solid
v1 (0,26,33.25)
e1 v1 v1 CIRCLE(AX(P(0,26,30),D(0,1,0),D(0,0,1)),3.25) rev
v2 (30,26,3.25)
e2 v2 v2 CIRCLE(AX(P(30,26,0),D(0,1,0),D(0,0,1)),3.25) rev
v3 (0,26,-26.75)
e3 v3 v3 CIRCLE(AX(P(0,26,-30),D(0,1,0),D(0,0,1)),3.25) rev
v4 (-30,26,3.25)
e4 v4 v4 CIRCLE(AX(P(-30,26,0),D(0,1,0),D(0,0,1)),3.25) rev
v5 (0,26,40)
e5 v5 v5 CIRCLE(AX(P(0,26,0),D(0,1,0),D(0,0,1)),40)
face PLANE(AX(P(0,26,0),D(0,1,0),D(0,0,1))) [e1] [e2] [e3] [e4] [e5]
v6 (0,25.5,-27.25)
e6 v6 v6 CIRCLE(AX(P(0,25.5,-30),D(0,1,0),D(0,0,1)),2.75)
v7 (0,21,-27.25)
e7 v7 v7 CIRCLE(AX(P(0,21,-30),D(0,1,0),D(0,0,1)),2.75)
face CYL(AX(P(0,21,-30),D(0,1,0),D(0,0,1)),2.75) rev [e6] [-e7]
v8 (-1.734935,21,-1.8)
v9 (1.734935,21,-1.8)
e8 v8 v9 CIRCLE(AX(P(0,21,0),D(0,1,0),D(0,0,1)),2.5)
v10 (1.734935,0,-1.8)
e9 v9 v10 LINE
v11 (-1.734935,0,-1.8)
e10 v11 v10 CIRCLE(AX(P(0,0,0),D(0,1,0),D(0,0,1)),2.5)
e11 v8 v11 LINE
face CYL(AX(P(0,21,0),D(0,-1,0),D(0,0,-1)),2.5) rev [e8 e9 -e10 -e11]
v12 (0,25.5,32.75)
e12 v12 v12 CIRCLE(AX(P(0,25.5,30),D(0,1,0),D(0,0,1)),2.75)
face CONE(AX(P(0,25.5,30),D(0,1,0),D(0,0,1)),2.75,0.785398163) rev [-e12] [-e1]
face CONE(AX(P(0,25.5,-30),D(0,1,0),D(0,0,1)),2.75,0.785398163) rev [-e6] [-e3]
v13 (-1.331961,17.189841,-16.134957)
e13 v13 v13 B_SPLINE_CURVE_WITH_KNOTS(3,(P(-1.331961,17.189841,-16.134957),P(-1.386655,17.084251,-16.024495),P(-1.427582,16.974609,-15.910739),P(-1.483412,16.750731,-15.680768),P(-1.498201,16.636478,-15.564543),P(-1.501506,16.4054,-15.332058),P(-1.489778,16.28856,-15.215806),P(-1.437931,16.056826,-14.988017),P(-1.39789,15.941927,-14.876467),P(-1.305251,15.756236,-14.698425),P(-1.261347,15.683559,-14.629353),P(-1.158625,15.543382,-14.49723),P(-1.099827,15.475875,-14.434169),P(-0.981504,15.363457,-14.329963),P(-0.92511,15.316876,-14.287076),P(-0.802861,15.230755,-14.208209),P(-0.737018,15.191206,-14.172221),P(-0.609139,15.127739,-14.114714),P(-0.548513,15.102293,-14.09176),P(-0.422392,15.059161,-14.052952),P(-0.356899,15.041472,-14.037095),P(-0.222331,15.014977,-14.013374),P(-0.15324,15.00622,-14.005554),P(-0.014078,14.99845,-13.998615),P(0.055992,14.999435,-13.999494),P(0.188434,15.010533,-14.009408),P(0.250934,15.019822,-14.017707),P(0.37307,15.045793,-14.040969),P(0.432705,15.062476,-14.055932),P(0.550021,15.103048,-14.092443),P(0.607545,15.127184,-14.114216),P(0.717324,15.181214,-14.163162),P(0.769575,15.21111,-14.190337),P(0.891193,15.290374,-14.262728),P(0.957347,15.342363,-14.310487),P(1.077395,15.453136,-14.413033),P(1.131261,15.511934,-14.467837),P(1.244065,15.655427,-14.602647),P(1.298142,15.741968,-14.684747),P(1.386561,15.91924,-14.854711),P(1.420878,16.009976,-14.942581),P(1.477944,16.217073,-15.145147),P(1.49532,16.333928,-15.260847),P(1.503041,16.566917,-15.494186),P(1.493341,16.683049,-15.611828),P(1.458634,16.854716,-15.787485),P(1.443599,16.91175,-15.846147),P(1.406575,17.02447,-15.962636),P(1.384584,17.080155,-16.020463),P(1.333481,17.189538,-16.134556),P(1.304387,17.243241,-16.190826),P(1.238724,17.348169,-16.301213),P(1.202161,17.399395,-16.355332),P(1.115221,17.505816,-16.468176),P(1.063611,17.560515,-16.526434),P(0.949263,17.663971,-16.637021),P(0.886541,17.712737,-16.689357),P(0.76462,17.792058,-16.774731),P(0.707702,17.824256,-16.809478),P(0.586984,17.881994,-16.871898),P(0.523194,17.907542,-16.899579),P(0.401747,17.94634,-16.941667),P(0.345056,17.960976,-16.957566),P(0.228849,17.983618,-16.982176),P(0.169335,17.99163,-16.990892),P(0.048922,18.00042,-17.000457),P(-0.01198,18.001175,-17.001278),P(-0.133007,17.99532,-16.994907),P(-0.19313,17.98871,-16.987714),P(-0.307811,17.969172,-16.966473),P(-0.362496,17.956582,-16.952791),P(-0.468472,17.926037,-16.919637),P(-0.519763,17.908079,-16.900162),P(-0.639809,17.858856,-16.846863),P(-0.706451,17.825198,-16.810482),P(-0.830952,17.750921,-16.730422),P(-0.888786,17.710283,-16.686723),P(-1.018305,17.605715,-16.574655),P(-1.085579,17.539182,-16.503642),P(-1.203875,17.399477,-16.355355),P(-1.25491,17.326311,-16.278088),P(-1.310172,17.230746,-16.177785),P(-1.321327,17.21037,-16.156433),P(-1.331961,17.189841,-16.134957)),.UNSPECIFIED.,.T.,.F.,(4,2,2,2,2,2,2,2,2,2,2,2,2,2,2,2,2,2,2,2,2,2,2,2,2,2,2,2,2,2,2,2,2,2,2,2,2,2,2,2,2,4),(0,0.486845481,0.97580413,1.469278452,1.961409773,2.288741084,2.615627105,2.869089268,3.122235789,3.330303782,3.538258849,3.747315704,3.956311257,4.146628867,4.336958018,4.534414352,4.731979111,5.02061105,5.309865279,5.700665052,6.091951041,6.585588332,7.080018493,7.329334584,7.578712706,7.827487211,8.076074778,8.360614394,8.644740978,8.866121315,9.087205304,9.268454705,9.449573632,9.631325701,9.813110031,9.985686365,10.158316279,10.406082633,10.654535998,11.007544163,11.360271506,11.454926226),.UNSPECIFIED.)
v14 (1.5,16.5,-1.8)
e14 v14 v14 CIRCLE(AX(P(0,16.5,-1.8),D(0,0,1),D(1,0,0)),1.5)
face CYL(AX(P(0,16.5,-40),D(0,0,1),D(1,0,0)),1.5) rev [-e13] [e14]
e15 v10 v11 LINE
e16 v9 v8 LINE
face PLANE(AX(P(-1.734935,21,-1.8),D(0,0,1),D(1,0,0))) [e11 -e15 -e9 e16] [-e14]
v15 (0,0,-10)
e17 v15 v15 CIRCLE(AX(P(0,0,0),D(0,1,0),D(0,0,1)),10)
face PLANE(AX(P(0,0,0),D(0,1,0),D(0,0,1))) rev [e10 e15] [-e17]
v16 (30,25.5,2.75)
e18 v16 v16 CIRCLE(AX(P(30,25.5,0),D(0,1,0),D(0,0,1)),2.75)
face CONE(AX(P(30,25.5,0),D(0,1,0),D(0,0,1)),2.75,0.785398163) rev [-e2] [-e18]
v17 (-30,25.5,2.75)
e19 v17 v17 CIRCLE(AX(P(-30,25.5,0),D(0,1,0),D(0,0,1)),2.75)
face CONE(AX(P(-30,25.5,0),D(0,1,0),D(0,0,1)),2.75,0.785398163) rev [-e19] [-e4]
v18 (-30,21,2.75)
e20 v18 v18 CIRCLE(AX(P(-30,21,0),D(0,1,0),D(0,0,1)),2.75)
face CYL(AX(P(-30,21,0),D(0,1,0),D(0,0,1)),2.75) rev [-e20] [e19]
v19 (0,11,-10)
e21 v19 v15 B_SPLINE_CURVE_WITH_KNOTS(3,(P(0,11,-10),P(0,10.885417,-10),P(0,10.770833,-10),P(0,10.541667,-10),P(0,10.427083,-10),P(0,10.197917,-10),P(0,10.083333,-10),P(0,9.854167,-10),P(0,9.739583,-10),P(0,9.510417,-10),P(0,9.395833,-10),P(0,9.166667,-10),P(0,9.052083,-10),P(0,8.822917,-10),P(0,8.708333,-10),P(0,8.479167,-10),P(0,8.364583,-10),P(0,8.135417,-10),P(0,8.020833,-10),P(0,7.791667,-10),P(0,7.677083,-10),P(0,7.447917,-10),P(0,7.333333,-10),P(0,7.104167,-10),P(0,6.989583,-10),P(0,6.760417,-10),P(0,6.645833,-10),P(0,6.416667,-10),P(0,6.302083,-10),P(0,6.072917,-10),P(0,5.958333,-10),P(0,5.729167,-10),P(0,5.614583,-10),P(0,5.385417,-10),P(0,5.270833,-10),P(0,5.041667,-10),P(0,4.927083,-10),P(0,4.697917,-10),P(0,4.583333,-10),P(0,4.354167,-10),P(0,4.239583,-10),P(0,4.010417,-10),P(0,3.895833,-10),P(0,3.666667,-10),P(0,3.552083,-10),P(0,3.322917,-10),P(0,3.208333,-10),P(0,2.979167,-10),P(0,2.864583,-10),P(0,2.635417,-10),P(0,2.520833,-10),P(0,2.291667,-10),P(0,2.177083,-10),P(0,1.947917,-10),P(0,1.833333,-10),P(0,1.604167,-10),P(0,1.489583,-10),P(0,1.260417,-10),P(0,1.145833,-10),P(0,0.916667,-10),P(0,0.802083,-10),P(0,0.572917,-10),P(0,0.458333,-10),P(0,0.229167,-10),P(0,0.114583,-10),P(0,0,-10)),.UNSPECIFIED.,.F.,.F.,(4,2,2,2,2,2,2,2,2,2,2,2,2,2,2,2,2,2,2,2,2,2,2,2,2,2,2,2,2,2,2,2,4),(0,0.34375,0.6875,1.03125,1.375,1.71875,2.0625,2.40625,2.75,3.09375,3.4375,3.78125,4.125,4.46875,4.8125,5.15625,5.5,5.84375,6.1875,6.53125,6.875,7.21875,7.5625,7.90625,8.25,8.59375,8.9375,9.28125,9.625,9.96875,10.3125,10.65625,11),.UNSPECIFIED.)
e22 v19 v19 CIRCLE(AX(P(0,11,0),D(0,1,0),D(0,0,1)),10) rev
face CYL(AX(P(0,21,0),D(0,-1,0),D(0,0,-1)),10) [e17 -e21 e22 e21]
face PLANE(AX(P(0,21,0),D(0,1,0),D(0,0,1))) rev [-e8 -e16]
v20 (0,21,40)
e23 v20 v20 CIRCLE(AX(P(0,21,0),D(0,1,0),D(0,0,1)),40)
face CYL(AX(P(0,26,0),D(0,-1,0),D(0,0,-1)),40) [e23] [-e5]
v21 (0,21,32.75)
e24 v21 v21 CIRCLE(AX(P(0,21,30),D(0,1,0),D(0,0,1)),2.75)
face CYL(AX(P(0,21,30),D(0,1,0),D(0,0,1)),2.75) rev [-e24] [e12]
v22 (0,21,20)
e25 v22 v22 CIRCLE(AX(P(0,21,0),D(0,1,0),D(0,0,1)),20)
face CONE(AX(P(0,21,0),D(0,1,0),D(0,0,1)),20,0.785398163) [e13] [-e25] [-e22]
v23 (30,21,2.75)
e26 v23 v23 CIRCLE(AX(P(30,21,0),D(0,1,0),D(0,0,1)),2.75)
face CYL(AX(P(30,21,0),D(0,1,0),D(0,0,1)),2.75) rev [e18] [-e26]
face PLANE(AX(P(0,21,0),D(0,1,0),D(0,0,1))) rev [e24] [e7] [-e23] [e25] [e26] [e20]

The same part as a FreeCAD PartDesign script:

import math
import FreeCAD as App
import Part
import Sketcher
from FreeCAD import Vector


def edges_at(feature, points):
    """Names of the edges that pass closest to the given points."""
    edges = feature.Shape.Edges
    near = lambda p: min(range(len(edges)), key=lambda i: edges[i].distToShape(Part.Vertex(*p))[0])
    return sorted({f"Edge{near(p) + 1}" for p in points})

doc = App.newDocument("Part")
params = doc.addObject("Spreadsheet::Sheet", "Params")
for row, (alias, value) in enumerate([
    ("sketch1_diameter", "20 mm"),
    ("sketch1_radius", "2.5 mm"),
    ("pad1_length", "21 mm"),
    ("sketch2_diameter", "80 mm"),
    ("pad2_length", "5 mm"),
    ("chamfer_size", "10 mm"),
    ("sketch3_diameter", "5.5 mm"),
    ("pocket1_length", "5 mm"),
    ("chamfer2_size", "0.5 mm"),
    ("sketch4_diameter", "3 mm"),
], start=1):
    params.set(f"A{row}", alias)
    params.set(f"B{row}", "=" + value)
    params.setAlias(f"B{row}", alias)

body = doc.addObject("PartDesign::Body", "Body")

# Sketch on XZ plane
sketch1 = body.newObject("Sketcher::SketchObject", "Sketch")
sketch1.AttachmentSupport = (doc.getObject("XZ_Plane"), [""])
sketch1.MapMode = "FlatFace"
sketch1.addGeometry([
    Part.Circle(Vector(0, 0, 0), Vector(0, 0, 1), 10),
    Part.ArcOfCircle(Part.Circle(Vector(0, 0, 0), Vector(0, 0, 1), 2.5), math.radians(-46), math.radians(226)),
    Part.LineSegment(Vector(-1.7, -1.8, 0), Vector(1.7, -1.8, 0)),
], False)
sketch1.addConstraint([
    Sketcher.Constraint("Coincident", 1, 1, 2, 2),
    Sketcher.Constraint("Coincident", 2, 1, 1, 2),
    Sketcher.Constraint("Horizontal", 2),
    Sketcher.Constraint("Coincident", 0, 3, -1, 1),
    Sketcher.Constraint("Coincident", 1, 3, -1, 1),
    Sketcher.Constraint("Diameter", 0, 20.0),
    Sketcher.Constraint("Radius", 1, 2.5),
    Sketcher.Constraint("DistanceY", 1, 1, -1, 1, 1.8),
])
sketch1.setExpression("Constraints[5]", "Params.sketch1_diameter")
sketch1.setExpression("Constraints[6]", "Params.sketch1_radius")
pad1 = body.newObject("PartDesign::Pad", "Pad")
pad1.Profile = sketch1
pad1.setExpression("Length", "Params.pad1_length")
pad1.Reversed = True

# Sketch on XZ plane
sketch2 = body.newObject("Sketcher::SketchObject", "Sketch001")
sketch2.AttachmentSupport = (doc.getObject("XZ_Plane"), [""])
sketch2.MapMode = "FlatFace"
sketch2.AttachmentOffset = App.Placement(Vector(0, 0, -21), App.Rotation())
sketch2.addGeometry(Part.Circle(Vector(0, 0, 0), Vector(0, 0, 1), 40), False)
sketch2.addConstraint([
    Sketcher.Constraint("Coincident", 0, 3, -1, 1),
    Sketcher.Constraint("Diameter", 0, 80.0),
])
sketch2.setExpression("Constraints[1]", "Params.sketch2_diameter")
pad2 = body.newObject("PartDesign::Pad", "Pad001")
pad2.Profile = sketch2
pad2.setExpression("Length", "Params.pad2_length")
pad2.Reversed = True
doc.recompute()

chamfer = body.newObject("PartDesign::Chamfer", "Chamfer")
chamfer.Base = (pad2, edges_at(pad2, [(0, 21, 10)]))
chamfer.setExpression("Size", "Params.chamfer_size")

# Sketch on XZ plane
sketch3 = body.newObject("Sketcher::SketchObject", "Sketch002")
sketch3.AttachmentSupport = (doc.getObject("XZ_Plane"), [""])
sketch3.MapMode = "FlatFace"
sketch3.AttachmentOffset = App.Placement(Vector(0, 0, -26), App.Rotation())
sketch3.addGeometry([
    Part.Circle(Vector(0, -30, 0), Vector(0, 0, 1), 2.8),
    Part.Circle(Vector(30, 0, 0), Vector(0, 0, 1), 2.8),
    Part.Circle(Vector(0, 30, 0), Vector(0, 0, 1), 2.8),
    Part.Circle(Vector(-30, 0, 0), Vector(0, 0, 1), 2.8),
], False)
sketch3.addConstraint([
    Sketcher.Constraint("Equal", 0, 1),
    Sketcher.Constraint("Equal", 1, 2),
    Sketcher.Constraint("Equal", 2, 3),
    Sketcher.Constraint("Symmetric", 0, 3, 2, 3, -1, 1),
    Sketcher.Constraint("Symmetric", 1, 3, 3, 3, -1, 1),
    Sketcher.Constraint("PointOnObject", 0, 3, -2),
    Sketcher.Constraint("PointOnObject", 1, 3, -1),
    Sketcher.Constraint("Diameter", 0, 5.5),
    Sketcher.Constraint("DistanceY", 0, 3, -1, 1, 30.0),
    Sketcher.Constraint("DistanceX", -1, 1, 1, 3, 30.0),
])
sketch3.setExpression("Constraints[7]", "Params.sketch3_diameter")
pocket1 = body.newObject("PartDesign::Pocket", "Pocket")
pocket1.Profile = sketch3
pocket1.setExpression("Length", "Params.pocket1_length")
pocket1.Reversed = True
doc.recompute()

chamfer2 = body.newObject("PartDesign::Chamfer", "Chamfer001")
chamfer2.Base = (pocket1, edges_at(pocket1, [
    (0, 26, -32.75),
    (30, 26, -2.75),
    (0, 26, 27.25),
    (-30, 26, -2.75),
]))
chamfer2.setExpression("Size", "Params.chamfer2_size")

# Sketch on XY plane
sketch4 = body.newObject("Sketcher::SketchObject", "Sketch003")
sketch4.AttachmentSupport = (doc.getObject("XY_Plane"), [""])
sketch4.MapMode = "FlatFace"
sketch4.addGeometry(Part.Circle(Vector(0, 16.5, 0), Vector(0, 0, 1), 1.5), False)
sketch4.addConstraint([
    Sketcher.Constraint("PointOnObject", 0, 3, -2),
    Sketcher.Constraint("Diameter", 0, 3.0),
    Sketcher.Constraint("DistanceY", -1, 1, 0, 3, 16.5),
])
sketch4.setExpression("Constraints[1]", "Params.sketch4_diameter")
pocket2 = body.newObject("PartDesign::Pocket", "Pocket001")
pocket2.Profile = sketch4
pocket2.Type = "ThroughAll"

doc.recompute()
